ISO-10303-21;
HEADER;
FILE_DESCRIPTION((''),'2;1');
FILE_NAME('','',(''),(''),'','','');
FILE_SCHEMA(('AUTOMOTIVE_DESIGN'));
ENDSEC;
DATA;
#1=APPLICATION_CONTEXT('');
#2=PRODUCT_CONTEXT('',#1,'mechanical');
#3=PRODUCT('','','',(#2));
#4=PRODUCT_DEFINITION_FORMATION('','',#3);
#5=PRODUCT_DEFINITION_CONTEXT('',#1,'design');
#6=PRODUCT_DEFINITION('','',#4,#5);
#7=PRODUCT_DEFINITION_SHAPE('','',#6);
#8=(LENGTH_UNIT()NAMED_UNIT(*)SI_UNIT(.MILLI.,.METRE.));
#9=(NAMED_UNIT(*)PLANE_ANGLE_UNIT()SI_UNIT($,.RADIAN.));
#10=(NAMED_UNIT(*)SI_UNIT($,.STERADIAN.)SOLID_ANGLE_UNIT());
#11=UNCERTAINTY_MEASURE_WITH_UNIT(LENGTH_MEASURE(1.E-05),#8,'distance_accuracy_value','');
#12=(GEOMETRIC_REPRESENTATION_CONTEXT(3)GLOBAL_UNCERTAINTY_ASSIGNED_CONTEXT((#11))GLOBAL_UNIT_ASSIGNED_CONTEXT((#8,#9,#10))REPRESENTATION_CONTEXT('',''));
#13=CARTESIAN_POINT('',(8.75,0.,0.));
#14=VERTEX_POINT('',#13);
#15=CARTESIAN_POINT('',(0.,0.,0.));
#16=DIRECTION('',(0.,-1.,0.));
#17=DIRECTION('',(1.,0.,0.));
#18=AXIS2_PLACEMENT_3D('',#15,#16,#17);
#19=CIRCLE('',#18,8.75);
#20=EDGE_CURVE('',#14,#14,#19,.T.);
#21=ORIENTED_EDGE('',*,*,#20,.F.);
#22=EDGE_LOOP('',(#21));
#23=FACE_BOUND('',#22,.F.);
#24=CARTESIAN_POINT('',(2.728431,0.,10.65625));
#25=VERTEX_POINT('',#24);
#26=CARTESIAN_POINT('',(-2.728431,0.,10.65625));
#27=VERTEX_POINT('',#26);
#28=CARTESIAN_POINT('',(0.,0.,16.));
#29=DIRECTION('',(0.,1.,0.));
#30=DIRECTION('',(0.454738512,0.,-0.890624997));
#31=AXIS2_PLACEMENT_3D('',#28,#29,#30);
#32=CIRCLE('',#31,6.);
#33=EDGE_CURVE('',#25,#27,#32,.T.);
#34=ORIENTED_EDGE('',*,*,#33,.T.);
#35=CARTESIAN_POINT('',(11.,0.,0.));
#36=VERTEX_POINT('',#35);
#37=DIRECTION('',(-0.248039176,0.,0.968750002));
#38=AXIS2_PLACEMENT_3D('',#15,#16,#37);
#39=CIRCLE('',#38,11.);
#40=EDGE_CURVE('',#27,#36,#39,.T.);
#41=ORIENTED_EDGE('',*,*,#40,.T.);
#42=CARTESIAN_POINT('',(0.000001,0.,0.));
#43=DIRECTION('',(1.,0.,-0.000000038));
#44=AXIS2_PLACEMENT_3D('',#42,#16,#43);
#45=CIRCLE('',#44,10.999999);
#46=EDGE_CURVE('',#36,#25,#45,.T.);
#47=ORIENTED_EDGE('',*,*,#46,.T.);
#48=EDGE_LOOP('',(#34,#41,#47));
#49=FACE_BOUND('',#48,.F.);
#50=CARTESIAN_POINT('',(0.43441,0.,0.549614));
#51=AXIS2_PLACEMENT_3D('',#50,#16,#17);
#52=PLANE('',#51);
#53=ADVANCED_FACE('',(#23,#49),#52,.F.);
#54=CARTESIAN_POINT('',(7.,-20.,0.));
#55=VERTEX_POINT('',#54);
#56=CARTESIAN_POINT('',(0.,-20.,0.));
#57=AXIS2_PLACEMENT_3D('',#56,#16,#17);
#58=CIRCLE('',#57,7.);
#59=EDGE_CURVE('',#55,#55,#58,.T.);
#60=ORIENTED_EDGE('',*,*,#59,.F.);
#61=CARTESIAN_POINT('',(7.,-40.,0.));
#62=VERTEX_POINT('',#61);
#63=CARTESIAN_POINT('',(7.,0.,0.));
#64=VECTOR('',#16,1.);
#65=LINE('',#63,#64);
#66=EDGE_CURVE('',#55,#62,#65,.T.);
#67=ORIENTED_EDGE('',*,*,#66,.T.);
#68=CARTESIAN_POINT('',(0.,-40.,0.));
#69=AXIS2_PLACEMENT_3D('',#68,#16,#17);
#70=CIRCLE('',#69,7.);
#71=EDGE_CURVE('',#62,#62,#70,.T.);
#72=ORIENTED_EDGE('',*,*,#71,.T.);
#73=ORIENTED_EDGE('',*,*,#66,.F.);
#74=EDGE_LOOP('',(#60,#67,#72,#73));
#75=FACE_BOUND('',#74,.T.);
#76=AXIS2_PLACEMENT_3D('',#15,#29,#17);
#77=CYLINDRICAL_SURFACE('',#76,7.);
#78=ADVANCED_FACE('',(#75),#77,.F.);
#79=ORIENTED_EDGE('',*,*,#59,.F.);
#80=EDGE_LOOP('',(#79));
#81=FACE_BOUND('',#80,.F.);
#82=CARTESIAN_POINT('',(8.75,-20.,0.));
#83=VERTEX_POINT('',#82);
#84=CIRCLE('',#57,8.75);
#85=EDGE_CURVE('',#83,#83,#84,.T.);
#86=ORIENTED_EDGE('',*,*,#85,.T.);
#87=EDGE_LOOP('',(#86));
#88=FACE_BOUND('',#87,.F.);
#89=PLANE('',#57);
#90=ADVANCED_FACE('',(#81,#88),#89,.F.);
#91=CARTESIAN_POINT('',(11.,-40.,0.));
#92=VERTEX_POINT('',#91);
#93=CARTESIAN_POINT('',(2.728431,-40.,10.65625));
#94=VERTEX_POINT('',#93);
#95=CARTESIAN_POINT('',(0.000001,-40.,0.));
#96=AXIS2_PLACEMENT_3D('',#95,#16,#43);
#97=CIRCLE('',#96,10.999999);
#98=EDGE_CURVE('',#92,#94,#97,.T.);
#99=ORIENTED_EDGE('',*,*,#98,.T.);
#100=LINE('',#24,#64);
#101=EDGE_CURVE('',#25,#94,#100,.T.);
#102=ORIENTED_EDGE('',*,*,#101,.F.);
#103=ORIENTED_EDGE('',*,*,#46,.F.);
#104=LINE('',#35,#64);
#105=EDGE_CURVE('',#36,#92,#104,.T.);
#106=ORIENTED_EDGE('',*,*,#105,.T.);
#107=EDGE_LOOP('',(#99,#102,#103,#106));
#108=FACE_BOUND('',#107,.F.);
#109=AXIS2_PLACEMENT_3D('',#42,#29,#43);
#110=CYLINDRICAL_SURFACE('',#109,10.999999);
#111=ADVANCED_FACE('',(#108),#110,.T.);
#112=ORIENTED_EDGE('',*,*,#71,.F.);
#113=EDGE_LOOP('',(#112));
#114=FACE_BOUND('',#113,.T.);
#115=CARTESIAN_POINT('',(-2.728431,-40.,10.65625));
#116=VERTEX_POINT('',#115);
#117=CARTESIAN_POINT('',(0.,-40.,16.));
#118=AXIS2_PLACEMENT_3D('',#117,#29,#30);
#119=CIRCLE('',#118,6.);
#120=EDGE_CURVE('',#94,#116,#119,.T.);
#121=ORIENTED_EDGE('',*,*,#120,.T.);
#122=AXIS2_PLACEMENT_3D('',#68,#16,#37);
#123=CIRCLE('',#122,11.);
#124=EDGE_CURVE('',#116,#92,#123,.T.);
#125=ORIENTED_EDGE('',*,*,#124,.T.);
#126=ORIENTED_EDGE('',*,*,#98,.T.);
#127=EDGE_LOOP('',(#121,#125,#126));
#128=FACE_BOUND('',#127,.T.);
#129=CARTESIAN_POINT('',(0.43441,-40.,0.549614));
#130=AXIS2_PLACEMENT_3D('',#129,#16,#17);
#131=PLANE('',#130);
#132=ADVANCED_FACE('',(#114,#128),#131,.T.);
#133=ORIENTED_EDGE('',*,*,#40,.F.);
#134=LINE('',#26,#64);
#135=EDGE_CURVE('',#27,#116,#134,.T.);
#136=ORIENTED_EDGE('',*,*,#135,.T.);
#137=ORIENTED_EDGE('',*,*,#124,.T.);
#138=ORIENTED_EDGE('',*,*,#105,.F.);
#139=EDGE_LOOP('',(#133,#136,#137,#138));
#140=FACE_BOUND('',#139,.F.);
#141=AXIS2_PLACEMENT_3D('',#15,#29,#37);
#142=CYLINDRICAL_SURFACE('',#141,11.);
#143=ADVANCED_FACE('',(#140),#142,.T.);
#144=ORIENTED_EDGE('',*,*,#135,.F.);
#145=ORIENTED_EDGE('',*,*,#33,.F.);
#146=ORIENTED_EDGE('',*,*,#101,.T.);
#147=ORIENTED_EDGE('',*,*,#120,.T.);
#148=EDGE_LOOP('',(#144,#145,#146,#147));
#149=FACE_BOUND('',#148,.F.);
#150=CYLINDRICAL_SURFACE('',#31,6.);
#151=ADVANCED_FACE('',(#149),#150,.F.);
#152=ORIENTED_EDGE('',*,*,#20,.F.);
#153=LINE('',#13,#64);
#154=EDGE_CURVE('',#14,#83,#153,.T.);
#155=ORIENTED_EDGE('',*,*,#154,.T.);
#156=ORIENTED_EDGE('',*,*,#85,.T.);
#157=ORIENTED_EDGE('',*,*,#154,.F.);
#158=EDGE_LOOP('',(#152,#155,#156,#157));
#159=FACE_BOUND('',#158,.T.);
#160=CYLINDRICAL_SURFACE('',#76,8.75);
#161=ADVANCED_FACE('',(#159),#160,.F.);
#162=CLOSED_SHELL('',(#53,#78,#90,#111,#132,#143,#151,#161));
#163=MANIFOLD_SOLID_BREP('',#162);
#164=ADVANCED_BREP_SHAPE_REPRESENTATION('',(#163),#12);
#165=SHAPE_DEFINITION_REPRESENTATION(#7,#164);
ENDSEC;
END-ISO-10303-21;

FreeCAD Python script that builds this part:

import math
import FreeCAD as App
import Part
import Sketcher

V = App.Vector
Q = App.Units.Quantity

doc = App.newDocument("Part")
body = doc.addObject("PartDesign::Body", "Body")

sketch1 = body.newObject("Sketcher::SketchObject", "Sketch")
sketch1.AttachmentSupport = (doc.getObject("XZ_Plane"), [""])
sketch1.MapMode = "FlatFace"
sketch1.addGeometry(Part.ArcOfCircle(Part.Circle(V(0, 0, 0), V(0, 0, 1), 11), math.radians(104), math.radians(360)), False)
sketch1.addGeometry(Part.ArcOfCircle(Part.Circle(V(0, 0, 0), V(0, 0, 1), 11), math.radians(0), math.radians(76)), False)
sketch1.addGeometry(Part.ArcOfCircle(Part.Circle(V(0, 16, 0), V(0, 0, 1), 6), math.radians(-117), math.radians(-63)), False)
sketch1.addGeometry(Part.Circle(V(0, 0, 0), V(0, 0, 1), 7), False)
sketch1.addConstraint(Sketcher.Constraint("Tangent", 0, 2, 1, 1))
sketch1.addConstraint(Sketcher.Constraint("Coincident", 1, 2, 2, 2))
sketch1.addConstraint(Sketcher.Constraint("Coincident", 2, 1, 0, 1))
sketch1.addConstraint(Sketcher.Constraint("Coincident", 0, 3, -1, 1))
sketch1.addConstraint(Sketcher.Constraint("Coincident", 3, 3, -1, 1))
sketch1.addConstraint(Sketcher.Constraint("Equal", 0, 1))
sketch1.addConstraint(Sketcher.Constraint("PointOnObject", 2, 3, -2))
sketch1.addConstraint(Sketcher.Constraint("PointOnObject", 0, 2, -1))
sketch1.addConstraint(Sketcher.Constraint("Diameter", 3, Q("14 mm")))
sketch1.addConstraint(Sketcher.Constraint("Radius", 0, Q("11 mm")))
sketch1.addConstraint(Sketcher.Constraint("Radius", 2, Q("6 mm")))
sketch1.addConstraint(Sketcher.Constraint("DistanceY", -1, 1, 2, 3, Q("16 mm")))
pad1 = body.newObject("PartDesign::Pad", "Pad")
pad1.Profile = sketch1
pad1.Length = 40

sketch2 = body.newObject("Sketcher::SketchObject", "Sketch001")
sketch2.AttachmentSupport = (doc.getObject("XZ_Plane"), [""])
sketch2.MapMode = "FlatFace"
sketch2.addGeometry(Part.Circle(V(0, 0, 0), V(0, 0, 1), 9), False)
sketch2.addGeometry(Part.Circle(V(0, 0, 0), V(0, 0, 1), 7), False)
sketch2.addConstraint(Sketcher.Constraint("Coincident", 0, 3, -1, 1))
sketch2.addConstraint(Sketcher.Constraint("Coincident", 1, 3, -1, 1))
sketch2.addConstraint(Sketcher.Constraint("Diameter", 1, Q("14 mm")))
sketch2.addConstraint(Sketcher.Constraint("Diameter", 0, Q("17.5 mm")))
pocket1 = body.newObject("PartDesign::Pocket", "Pocket")
pocket1.Profile = sketch2
pocket1.Length = 20
pocket1.Reversed = True

doc.recompute()
